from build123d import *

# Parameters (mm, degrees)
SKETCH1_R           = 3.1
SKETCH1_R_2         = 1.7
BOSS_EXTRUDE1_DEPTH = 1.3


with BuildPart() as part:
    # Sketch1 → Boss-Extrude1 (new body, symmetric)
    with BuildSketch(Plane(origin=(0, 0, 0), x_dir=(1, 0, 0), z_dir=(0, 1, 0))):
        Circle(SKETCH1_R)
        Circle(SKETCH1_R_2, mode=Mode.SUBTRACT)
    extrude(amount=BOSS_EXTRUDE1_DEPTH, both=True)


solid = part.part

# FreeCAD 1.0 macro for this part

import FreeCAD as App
import Part
import Sketcher
from FreeCAD import Vector
Q = App.Units.Quantity

doc = App.newDocument("Part")
body = doc.addObject("PartDesign::Body", "Body")

sketch1 = body.newObject("Sketcher::SketchObject", "Sketch")
sketch1.AttachmentSupport = (doc.getObject("XZ_Plane"), [""])
sketch1.MapMode = "FlatFace"
sketch1.addGeometry([
    Part.Circle(Vector(0, 0, 0), Vector(0, 0, 1), 3.1),
    Part.Circle(Vector(0, 0, 0), Vector(0, 0, 1), 1.7),
], False)
sketch1.addConstraint([
    Sketcher.Constraint("Coincident", 0, 3, -1, 1),
    Sketcher.Constraint("Coincident", 1, 3, -1, 1),
    Sketcher.Constraint("Diameter", 0, Q("6.2 mm")),
    Sketcher.Constraint("Diameter", 1, Q("3.4 mm")),
])
pad1 = body.newObject("PartDesign::Pad", "Pad")
pad1.Profile = sketch1
pad1.Length = 2.6
pad1.Midplane = True

doc.recompute()
